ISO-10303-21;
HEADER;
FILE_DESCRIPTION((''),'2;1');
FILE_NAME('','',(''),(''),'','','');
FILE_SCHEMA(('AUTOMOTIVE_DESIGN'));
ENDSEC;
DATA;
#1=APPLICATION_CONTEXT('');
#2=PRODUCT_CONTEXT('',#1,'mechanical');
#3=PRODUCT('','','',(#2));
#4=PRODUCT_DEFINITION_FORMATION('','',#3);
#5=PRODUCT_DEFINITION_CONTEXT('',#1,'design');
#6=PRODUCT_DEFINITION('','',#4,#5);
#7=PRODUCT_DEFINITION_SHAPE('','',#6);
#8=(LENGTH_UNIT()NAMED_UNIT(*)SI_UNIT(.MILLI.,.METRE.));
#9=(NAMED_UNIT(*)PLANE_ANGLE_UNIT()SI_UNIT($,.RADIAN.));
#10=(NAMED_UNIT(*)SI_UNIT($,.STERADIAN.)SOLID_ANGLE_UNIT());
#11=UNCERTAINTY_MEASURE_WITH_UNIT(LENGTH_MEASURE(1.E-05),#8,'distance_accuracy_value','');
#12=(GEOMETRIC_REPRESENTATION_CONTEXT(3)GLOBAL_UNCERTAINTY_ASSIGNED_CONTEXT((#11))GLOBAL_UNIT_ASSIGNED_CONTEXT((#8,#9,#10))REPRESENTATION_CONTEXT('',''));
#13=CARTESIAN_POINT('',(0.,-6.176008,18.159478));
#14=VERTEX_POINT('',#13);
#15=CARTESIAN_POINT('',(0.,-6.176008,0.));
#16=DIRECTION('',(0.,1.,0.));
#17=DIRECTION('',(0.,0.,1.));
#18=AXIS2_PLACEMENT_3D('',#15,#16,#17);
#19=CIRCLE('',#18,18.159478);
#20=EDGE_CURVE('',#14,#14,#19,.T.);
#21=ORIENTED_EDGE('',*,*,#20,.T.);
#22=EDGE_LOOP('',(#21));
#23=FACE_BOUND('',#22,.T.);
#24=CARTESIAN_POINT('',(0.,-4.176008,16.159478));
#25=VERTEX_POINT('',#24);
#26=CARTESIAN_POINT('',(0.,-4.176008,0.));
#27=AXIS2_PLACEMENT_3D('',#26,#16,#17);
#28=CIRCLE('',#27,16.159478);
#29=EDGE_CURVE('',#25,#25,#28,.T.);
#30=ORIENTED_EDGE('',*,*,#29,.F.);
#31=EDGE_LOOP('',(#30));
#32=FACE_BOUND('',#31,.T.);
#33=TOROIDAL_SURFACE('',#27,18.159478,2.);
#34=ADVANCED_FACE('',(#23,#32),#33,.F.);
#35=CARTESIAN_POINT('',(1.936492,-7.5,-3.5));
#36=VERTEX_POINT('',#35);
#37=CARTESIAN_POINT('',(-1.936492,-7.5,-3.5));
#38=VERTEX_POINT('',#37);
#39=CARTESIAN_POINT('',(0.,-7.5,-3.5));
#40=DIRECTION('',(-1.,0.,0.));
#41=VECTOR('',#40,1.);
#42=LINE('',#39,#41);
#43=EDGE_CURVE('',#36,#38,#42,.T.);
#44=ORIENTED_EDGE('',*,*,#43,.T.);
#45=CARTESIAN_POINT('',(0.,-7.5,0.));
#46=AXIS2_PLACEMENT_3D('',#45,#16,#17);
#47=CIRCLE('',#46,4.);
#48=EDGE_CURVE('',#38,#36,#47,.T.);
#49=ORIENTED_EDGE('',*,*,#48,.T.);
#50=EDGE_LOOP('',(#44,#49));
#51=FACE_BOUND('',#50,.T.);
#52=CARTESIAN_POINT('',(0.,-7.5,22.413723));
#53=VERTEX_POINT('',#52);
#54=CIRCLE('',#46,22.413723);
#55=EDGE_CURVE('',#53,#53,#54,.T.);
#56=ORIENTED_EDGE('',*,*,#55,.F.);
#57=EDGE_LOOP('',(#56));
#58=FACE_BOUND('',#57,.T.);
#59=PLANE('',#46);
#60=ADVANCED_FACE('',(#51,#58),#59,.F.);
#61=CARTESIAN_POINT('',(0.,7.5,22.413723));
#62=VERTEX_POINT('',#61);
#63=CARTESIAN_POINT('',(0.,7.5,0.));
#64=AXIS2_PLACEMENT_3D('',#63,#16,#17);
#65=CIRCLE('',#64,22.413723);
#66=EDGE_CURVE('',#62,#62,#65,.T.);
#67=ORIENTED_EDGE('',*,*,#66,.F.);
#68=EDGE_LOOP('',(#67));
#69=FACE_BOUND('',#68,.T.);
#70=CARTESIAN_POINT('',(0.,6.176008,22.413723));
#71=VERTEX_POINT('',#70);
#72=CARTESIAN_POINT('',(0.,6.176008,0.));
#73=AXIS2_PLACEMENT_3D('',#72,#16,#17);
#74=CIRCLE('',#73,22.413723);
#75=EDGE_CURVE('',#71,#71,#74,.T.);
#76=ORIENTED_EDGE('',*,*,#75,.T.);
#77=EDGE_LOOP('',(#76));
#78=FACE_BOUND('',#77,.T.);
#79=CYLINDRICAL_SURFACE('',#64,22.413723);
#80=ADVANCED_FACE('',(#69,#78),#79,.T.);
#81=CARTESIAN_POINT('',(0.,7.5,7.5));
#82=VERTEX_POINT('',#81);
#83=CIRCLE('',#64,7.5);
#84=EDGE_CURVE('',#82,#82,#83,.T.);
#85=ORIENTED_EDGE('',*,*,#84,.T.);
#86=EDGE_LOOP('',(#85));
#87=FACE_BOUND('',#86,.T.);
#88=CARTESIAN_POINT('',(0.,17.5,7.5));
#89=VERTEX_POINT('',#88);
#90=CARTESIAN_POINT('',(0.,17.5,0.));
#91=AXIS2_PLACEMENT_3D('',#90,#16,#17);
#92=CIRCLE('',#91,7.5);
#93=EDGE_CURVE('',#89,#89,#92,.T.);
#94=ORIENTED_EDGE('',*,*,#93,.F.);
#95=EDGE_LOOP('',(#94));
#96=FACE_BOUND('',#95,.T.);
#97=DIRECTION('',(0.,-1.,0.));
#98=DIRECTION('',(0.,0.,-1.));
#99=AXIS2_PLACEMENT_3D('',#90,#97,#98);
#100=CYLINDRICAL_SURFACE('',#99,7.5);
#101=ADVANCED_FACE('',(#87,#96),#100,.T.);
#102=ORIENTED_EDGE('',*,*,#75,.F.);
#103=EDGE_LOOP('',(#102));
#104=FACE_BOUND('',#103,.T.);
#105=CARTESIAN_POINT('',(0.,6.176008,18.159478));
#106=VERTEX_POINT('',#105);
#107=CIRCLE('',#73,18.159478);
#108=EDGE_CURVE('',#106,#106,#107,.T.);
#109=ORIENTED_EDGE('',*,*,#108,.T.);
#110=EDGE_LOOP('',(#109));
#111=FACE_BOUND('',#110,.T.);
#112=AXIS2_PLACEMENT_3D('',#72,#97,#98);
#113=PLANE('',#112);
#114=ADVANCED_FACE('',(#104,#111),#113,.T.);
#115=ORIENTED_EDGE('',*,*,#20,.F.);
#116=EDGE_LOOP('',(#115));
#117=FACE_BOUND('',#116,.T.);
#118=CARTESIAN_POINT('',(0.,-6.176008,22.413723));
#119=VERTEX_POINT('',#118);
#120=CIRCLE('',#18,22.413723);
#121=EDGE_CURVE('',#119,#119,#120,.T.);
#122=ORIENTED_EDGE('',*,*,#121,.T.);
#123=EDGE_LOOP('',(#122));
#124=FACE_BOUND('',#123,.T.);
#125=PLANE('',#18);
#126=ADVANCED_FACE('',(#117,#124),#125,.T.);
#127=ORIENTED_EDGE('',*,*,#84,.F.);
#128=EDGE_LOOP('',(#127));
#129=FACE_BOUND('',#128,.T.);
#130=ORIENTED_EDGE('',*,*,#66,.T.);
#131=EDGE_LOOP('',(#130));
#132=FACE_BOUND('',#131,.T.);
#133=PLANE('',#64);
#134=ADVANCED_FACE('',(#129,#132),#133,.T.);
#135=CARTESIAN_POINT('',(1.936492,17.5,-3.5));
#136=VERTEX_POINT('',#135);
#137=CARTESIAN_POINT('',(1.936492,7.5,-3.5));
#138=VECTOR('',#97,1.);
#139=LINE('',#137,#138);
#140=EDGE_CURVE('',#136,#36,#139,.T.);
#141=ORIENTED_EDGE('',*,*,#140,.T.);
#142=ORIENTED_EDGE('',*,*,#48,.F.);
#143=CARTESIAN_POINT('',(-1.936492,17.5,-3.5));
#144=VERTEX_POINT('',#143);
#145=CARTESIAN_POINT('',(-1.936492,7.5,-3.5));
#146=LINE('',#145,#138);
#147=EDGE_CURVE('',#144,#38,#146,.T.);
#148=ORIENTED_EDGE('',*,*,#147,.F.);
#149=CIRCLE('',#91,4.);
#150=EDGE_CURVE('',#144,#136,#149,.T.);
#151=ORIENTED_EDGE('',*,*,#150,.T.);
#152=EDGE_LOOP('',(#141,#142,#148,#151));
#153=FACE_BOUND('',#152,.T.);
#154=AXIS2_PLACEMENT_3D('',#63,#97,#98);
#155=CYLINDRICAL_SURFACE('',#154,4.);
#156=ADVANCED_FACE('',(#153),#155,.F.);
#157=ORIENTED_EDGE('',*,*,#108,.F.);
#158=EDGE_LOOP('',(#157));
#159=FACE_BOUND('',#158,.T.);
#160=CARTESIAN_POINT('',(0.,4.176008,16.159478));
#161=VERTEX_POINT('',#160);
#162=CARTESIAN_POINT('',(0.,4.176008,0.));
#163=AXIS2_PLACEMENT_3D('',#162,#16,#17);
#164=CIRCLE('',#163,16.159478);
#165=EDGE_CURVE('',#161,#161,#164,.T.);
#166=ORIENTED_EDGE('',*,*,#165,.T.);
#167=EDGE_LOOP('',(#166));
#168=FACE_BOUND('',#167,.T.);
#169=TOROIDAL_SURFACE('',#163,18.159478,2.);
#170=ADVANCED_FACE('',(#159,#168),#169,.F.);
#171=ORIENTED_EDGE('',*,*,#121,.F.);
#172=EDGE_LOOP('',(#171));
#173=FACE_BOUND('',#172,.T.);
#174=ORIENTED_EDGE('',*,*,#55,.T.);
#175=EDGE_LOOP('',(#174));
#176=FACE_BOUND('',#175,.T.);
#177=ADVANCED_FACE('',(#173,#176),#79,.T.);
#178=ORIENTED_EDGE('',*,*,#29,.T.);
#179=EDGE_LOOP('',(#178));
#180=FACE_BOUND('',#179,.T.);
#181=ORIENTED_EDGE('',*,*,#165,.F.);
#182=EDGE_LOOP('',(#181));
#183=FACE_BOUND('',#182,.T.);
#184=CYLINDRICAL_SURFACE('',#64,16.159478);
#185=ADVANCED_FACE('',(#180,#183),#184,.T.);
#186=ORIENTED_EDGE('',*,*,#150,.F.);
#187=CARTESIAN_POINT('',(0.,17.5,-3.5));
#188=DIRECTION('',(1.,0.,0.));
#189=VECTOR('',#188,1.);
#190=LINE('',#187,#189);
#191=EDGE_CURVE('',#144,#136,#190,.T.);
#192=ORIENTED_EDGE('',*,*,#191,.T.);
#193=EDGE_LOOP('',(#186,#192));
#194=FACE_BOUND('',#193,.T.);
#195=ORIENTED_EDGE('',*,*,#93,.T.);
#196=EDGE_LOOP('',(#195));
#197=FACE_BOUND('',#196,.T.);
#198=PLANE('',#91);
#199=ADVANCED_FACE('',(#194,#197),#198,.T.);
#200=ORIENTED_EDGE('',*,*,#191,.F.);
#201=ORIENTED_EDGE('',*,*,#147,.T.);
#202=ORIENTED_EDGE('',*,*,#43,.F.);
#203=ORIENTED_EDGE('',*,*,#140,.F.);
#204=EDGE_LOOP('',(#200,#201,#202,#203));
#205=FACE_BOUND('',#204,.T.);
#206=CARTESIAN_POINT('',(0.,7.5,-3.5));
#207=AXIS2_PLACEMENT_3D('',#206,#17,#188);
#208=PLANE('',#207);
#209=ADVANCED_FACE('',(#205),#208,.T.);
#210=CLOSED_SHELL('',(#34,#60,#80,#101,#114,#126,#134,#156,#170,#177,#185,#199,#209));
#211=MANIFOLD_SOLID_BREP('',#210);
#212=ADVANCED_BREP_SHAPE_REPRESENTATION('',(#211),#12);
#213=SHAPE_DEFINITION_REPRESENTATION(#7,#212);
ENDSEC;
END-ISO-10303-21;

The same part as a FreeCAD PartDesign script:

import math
import FreeCAD as App
import Part
import Sketcher

V = App.Vector
Q = App.Units.Quantity

doc = App.newDocument("Part")
body = doc.addObject("PartDesign::Body", "Body")

# Sketch on XZ plane
sketch1 = body.newObject("Sketcher::SketchObject", "Sketch")
sketch1.AttachmentSupport = (doc.getObject("XZ_Plane"), [""])
sketch1.MapMode = "FlatFace"
sketch1.addGeometry([
    Part.Circle(V(0, 0, 0), V(0, 0, 1), 15),
    Part.LineSegment(V(-1.9, -3.5, 0), V(1.9, -3.5, 0)),
    Part.ArcOfCircle(Part.Circle(V(0, 0, 0), V(0, 0, 1), 4), math.radians(-61), math.radians(241)),
], False)
sketch1.addConstraint([
    Sketcher.Constraint("Coincident", 1, 1, 2, 2),
    Sketcher.Constraint("Coincident", 2, 1, 1, 2),
    Sketcher.Constraint("Horizontal", 1),
    Sketcher.Constraint("Coincident", 0, 3, -1, 1),
    Sketcher.Constraint("Coincident", 2, 3, -1, 1),
    Sketcher.Constraint("Diameter", 0, Q("30 mm")),
    Sketcher.Constraint("Radius", 2, Q("4 mm")),
    Sketcher.Constraint("DistanceY", 1, 1, -1, 1, Q("3.5 mm")),
])
pad1 = body.newObject("PartDesign::Pad", "Pad")
pad1.Profile = sketch1
pad1.Length = 15
pad1.Midplane = True

# Sketch on YZ plane
sketch2 = body.newObject("Sketcher::SketchObject", "Sketch001")
sketch2.AttachmentSupport = (doc.getObject("YZ_Plane"), [""])
sketch2.MapMode = "FlatFace"
sketch2.addGeometry([
    Part.ArcOfCircle(Part.Circle(V(4.2, -18.2, 0), V(0, 0, 1), 2), math.radians(0), math.radians(90)),  # 0
    Part.LineSegment(V(6.2, -18.2, 0), V(6.2, -22.4, 0)),  # 1
    Part.LineSegment(V(6.2, -22.4, 0), V(7.5, -22.4, 0)),  # 2
    Part.LineSegment(V(7.5, -22.4, 0), V(7.5, -15, 0)),  # 3
    Part.LineSegment(V(7.5, -15, 0), V(-7.5, -15, 0)),  # 4
    Part.LineSegment(V(-7.5, -15, 0), V(-7.5, -22.4, 0)),  # 5
    Part.LineSegment(V(-7.5, -22.4, 0), V(-6.2, -22.4, 0)),  # 6
    Part.LineSegment(V(-6.2, -22.4, 0), V(-6.2, -18.2, 0)),  # 7
    Part.ArcOfCircle(Part.Circle(V(-4.2, -18.2, 0), V(0, 0, 1), 2), math.radians(90), math.radians(180)),  # 8
    Part.LineSegment(V(-4.2, -16.2, 0), V(4.2, -16.2, 0)),  # 9
], False)
sketch2.addConstraint([
    Sketcher.Constraint("Tangent", 0, 1, 1, 1),
    Sketcher.Constraint("Coincident", 1, 2, 2, 1),
    Sketcher.Constraint("Coincident", 2, 2, 3, 1),
    Sketcher.Constraint("Coincident", 3, 2, 4, 1),
    Sketcher.Constraint("Coincident", 4, 2, 5, 1),
    Sketcher.Constraint("Coincident", 5, 2, 6, 1),
    Sketcher.Constraint("Coincident", 6, 2, 7, 1),
    Sketcher.Constraint("Tangent", 7, 2, 8, 2),
    Sketcher.Constraint("Tangent", 8, 1, 9, 1),
    Sketcher.Constraint("Tangent", 9, 2, 0, 2),
    Sketcher.Constraint("Vertical", 1),
    Sketcher.Constraint("Horizontal", 2),
    Sketcher.Constraint("Vertical", 3),
    Sketcher.Constraint("Horizontal", 4),
    Sketcher.Constraint("Vertical", 5),
    Sketcher.Constraint("Horizontal", 6),
    Sketcher.Constraint("Vertical", 7),
    Sketcher.Constraint("Horizontal", 9),
    Sketcher.Constraint("Equal", 0, 8),
    Sketcher.Constraint("Symmetric", 2, 2, 5, 2, -2),
    Sketcher.Constraint("Equal", 2, 6),
    Sketcher.Constraint("Radius", 0, Q("2 mm")),
    Sketcher.Constraint("DistanceX", 4, 2, 4, 1, Q("15 mm")),
    Sketcher.Constraint("DistanceY", 3, 2, -1, 1, Q("15 mm")),
    Sketcher.Constraint("DistanceX", 2, 1, 2, 2, Q("1.323992 mm")),
    Sketcher.Constraint("DistanceY", 1, 2, 1, 1, Q("4.254245 mm")),
    Sketcher.Constraint("DistanceY", 3, 1, 3, 2, Q("7.413723 mm")),
])
revolution = body.newObject("PartDesign::Revolution", "Revolution")
revolution.Profile = sketch2
revolution.ReferenceAxis = (sketch2, ["H_Axis"])
revolution.Angle = 360

# Sketch on XZ plane
sketch3 = body.newObject("Sketcher::SketchObject", "Sketch002")
sketch3.AttachmentSupport = (doc.getObject("XZ_Plane"), [""])
sketch3.MapMode = "FlatFace"
sketch3.AttachmentOffset = App.Placement(V(0, 0, -7.5), App.Rotation())
sketch3.addGeometry([
    Part.Circle(V(0, 0, 0), V(0, 0, 1), 7.5),
    Part.ArcOfCircle(Part.Circle(V(0, 0, 0), V(0, 0, 1), 4), math.radians(-61), math.radians(241)),
    Part.LineSegment(V(-1.9, -3.5, 0), V(1.9, -3.5, 0)),
], False)
sketch3.addConstraint([
    Sketcher.Constraint("Coincident", 1, 1, 2, 2),
    Sketcher.Constraint("Coincident", 2, 1, 1, 2),
    Sketcher.Constraint("Horizontal", 2),
    Sketcher.Constraint("Coincident", 0, 3, -1, 1),
    Sketcher.Constraint("Coincident", 1, 3, -1, 1),
    Sketcher.Constraint("Diameter", 0, Q("15 mm")),
    Sketcher.Constraint("Radius", 1, Q("4 mm")),
    Sketcher.Constraint("DistanceY", 1, 1, -1, 1, Q("3.5 mm")),
])
pad2 = body.newObject("PartDesign::Pad", "Pad001")
pad2.Profile = sketch3
pad2.Length = 10
pad2.Reversed = True

doc.recompute()
